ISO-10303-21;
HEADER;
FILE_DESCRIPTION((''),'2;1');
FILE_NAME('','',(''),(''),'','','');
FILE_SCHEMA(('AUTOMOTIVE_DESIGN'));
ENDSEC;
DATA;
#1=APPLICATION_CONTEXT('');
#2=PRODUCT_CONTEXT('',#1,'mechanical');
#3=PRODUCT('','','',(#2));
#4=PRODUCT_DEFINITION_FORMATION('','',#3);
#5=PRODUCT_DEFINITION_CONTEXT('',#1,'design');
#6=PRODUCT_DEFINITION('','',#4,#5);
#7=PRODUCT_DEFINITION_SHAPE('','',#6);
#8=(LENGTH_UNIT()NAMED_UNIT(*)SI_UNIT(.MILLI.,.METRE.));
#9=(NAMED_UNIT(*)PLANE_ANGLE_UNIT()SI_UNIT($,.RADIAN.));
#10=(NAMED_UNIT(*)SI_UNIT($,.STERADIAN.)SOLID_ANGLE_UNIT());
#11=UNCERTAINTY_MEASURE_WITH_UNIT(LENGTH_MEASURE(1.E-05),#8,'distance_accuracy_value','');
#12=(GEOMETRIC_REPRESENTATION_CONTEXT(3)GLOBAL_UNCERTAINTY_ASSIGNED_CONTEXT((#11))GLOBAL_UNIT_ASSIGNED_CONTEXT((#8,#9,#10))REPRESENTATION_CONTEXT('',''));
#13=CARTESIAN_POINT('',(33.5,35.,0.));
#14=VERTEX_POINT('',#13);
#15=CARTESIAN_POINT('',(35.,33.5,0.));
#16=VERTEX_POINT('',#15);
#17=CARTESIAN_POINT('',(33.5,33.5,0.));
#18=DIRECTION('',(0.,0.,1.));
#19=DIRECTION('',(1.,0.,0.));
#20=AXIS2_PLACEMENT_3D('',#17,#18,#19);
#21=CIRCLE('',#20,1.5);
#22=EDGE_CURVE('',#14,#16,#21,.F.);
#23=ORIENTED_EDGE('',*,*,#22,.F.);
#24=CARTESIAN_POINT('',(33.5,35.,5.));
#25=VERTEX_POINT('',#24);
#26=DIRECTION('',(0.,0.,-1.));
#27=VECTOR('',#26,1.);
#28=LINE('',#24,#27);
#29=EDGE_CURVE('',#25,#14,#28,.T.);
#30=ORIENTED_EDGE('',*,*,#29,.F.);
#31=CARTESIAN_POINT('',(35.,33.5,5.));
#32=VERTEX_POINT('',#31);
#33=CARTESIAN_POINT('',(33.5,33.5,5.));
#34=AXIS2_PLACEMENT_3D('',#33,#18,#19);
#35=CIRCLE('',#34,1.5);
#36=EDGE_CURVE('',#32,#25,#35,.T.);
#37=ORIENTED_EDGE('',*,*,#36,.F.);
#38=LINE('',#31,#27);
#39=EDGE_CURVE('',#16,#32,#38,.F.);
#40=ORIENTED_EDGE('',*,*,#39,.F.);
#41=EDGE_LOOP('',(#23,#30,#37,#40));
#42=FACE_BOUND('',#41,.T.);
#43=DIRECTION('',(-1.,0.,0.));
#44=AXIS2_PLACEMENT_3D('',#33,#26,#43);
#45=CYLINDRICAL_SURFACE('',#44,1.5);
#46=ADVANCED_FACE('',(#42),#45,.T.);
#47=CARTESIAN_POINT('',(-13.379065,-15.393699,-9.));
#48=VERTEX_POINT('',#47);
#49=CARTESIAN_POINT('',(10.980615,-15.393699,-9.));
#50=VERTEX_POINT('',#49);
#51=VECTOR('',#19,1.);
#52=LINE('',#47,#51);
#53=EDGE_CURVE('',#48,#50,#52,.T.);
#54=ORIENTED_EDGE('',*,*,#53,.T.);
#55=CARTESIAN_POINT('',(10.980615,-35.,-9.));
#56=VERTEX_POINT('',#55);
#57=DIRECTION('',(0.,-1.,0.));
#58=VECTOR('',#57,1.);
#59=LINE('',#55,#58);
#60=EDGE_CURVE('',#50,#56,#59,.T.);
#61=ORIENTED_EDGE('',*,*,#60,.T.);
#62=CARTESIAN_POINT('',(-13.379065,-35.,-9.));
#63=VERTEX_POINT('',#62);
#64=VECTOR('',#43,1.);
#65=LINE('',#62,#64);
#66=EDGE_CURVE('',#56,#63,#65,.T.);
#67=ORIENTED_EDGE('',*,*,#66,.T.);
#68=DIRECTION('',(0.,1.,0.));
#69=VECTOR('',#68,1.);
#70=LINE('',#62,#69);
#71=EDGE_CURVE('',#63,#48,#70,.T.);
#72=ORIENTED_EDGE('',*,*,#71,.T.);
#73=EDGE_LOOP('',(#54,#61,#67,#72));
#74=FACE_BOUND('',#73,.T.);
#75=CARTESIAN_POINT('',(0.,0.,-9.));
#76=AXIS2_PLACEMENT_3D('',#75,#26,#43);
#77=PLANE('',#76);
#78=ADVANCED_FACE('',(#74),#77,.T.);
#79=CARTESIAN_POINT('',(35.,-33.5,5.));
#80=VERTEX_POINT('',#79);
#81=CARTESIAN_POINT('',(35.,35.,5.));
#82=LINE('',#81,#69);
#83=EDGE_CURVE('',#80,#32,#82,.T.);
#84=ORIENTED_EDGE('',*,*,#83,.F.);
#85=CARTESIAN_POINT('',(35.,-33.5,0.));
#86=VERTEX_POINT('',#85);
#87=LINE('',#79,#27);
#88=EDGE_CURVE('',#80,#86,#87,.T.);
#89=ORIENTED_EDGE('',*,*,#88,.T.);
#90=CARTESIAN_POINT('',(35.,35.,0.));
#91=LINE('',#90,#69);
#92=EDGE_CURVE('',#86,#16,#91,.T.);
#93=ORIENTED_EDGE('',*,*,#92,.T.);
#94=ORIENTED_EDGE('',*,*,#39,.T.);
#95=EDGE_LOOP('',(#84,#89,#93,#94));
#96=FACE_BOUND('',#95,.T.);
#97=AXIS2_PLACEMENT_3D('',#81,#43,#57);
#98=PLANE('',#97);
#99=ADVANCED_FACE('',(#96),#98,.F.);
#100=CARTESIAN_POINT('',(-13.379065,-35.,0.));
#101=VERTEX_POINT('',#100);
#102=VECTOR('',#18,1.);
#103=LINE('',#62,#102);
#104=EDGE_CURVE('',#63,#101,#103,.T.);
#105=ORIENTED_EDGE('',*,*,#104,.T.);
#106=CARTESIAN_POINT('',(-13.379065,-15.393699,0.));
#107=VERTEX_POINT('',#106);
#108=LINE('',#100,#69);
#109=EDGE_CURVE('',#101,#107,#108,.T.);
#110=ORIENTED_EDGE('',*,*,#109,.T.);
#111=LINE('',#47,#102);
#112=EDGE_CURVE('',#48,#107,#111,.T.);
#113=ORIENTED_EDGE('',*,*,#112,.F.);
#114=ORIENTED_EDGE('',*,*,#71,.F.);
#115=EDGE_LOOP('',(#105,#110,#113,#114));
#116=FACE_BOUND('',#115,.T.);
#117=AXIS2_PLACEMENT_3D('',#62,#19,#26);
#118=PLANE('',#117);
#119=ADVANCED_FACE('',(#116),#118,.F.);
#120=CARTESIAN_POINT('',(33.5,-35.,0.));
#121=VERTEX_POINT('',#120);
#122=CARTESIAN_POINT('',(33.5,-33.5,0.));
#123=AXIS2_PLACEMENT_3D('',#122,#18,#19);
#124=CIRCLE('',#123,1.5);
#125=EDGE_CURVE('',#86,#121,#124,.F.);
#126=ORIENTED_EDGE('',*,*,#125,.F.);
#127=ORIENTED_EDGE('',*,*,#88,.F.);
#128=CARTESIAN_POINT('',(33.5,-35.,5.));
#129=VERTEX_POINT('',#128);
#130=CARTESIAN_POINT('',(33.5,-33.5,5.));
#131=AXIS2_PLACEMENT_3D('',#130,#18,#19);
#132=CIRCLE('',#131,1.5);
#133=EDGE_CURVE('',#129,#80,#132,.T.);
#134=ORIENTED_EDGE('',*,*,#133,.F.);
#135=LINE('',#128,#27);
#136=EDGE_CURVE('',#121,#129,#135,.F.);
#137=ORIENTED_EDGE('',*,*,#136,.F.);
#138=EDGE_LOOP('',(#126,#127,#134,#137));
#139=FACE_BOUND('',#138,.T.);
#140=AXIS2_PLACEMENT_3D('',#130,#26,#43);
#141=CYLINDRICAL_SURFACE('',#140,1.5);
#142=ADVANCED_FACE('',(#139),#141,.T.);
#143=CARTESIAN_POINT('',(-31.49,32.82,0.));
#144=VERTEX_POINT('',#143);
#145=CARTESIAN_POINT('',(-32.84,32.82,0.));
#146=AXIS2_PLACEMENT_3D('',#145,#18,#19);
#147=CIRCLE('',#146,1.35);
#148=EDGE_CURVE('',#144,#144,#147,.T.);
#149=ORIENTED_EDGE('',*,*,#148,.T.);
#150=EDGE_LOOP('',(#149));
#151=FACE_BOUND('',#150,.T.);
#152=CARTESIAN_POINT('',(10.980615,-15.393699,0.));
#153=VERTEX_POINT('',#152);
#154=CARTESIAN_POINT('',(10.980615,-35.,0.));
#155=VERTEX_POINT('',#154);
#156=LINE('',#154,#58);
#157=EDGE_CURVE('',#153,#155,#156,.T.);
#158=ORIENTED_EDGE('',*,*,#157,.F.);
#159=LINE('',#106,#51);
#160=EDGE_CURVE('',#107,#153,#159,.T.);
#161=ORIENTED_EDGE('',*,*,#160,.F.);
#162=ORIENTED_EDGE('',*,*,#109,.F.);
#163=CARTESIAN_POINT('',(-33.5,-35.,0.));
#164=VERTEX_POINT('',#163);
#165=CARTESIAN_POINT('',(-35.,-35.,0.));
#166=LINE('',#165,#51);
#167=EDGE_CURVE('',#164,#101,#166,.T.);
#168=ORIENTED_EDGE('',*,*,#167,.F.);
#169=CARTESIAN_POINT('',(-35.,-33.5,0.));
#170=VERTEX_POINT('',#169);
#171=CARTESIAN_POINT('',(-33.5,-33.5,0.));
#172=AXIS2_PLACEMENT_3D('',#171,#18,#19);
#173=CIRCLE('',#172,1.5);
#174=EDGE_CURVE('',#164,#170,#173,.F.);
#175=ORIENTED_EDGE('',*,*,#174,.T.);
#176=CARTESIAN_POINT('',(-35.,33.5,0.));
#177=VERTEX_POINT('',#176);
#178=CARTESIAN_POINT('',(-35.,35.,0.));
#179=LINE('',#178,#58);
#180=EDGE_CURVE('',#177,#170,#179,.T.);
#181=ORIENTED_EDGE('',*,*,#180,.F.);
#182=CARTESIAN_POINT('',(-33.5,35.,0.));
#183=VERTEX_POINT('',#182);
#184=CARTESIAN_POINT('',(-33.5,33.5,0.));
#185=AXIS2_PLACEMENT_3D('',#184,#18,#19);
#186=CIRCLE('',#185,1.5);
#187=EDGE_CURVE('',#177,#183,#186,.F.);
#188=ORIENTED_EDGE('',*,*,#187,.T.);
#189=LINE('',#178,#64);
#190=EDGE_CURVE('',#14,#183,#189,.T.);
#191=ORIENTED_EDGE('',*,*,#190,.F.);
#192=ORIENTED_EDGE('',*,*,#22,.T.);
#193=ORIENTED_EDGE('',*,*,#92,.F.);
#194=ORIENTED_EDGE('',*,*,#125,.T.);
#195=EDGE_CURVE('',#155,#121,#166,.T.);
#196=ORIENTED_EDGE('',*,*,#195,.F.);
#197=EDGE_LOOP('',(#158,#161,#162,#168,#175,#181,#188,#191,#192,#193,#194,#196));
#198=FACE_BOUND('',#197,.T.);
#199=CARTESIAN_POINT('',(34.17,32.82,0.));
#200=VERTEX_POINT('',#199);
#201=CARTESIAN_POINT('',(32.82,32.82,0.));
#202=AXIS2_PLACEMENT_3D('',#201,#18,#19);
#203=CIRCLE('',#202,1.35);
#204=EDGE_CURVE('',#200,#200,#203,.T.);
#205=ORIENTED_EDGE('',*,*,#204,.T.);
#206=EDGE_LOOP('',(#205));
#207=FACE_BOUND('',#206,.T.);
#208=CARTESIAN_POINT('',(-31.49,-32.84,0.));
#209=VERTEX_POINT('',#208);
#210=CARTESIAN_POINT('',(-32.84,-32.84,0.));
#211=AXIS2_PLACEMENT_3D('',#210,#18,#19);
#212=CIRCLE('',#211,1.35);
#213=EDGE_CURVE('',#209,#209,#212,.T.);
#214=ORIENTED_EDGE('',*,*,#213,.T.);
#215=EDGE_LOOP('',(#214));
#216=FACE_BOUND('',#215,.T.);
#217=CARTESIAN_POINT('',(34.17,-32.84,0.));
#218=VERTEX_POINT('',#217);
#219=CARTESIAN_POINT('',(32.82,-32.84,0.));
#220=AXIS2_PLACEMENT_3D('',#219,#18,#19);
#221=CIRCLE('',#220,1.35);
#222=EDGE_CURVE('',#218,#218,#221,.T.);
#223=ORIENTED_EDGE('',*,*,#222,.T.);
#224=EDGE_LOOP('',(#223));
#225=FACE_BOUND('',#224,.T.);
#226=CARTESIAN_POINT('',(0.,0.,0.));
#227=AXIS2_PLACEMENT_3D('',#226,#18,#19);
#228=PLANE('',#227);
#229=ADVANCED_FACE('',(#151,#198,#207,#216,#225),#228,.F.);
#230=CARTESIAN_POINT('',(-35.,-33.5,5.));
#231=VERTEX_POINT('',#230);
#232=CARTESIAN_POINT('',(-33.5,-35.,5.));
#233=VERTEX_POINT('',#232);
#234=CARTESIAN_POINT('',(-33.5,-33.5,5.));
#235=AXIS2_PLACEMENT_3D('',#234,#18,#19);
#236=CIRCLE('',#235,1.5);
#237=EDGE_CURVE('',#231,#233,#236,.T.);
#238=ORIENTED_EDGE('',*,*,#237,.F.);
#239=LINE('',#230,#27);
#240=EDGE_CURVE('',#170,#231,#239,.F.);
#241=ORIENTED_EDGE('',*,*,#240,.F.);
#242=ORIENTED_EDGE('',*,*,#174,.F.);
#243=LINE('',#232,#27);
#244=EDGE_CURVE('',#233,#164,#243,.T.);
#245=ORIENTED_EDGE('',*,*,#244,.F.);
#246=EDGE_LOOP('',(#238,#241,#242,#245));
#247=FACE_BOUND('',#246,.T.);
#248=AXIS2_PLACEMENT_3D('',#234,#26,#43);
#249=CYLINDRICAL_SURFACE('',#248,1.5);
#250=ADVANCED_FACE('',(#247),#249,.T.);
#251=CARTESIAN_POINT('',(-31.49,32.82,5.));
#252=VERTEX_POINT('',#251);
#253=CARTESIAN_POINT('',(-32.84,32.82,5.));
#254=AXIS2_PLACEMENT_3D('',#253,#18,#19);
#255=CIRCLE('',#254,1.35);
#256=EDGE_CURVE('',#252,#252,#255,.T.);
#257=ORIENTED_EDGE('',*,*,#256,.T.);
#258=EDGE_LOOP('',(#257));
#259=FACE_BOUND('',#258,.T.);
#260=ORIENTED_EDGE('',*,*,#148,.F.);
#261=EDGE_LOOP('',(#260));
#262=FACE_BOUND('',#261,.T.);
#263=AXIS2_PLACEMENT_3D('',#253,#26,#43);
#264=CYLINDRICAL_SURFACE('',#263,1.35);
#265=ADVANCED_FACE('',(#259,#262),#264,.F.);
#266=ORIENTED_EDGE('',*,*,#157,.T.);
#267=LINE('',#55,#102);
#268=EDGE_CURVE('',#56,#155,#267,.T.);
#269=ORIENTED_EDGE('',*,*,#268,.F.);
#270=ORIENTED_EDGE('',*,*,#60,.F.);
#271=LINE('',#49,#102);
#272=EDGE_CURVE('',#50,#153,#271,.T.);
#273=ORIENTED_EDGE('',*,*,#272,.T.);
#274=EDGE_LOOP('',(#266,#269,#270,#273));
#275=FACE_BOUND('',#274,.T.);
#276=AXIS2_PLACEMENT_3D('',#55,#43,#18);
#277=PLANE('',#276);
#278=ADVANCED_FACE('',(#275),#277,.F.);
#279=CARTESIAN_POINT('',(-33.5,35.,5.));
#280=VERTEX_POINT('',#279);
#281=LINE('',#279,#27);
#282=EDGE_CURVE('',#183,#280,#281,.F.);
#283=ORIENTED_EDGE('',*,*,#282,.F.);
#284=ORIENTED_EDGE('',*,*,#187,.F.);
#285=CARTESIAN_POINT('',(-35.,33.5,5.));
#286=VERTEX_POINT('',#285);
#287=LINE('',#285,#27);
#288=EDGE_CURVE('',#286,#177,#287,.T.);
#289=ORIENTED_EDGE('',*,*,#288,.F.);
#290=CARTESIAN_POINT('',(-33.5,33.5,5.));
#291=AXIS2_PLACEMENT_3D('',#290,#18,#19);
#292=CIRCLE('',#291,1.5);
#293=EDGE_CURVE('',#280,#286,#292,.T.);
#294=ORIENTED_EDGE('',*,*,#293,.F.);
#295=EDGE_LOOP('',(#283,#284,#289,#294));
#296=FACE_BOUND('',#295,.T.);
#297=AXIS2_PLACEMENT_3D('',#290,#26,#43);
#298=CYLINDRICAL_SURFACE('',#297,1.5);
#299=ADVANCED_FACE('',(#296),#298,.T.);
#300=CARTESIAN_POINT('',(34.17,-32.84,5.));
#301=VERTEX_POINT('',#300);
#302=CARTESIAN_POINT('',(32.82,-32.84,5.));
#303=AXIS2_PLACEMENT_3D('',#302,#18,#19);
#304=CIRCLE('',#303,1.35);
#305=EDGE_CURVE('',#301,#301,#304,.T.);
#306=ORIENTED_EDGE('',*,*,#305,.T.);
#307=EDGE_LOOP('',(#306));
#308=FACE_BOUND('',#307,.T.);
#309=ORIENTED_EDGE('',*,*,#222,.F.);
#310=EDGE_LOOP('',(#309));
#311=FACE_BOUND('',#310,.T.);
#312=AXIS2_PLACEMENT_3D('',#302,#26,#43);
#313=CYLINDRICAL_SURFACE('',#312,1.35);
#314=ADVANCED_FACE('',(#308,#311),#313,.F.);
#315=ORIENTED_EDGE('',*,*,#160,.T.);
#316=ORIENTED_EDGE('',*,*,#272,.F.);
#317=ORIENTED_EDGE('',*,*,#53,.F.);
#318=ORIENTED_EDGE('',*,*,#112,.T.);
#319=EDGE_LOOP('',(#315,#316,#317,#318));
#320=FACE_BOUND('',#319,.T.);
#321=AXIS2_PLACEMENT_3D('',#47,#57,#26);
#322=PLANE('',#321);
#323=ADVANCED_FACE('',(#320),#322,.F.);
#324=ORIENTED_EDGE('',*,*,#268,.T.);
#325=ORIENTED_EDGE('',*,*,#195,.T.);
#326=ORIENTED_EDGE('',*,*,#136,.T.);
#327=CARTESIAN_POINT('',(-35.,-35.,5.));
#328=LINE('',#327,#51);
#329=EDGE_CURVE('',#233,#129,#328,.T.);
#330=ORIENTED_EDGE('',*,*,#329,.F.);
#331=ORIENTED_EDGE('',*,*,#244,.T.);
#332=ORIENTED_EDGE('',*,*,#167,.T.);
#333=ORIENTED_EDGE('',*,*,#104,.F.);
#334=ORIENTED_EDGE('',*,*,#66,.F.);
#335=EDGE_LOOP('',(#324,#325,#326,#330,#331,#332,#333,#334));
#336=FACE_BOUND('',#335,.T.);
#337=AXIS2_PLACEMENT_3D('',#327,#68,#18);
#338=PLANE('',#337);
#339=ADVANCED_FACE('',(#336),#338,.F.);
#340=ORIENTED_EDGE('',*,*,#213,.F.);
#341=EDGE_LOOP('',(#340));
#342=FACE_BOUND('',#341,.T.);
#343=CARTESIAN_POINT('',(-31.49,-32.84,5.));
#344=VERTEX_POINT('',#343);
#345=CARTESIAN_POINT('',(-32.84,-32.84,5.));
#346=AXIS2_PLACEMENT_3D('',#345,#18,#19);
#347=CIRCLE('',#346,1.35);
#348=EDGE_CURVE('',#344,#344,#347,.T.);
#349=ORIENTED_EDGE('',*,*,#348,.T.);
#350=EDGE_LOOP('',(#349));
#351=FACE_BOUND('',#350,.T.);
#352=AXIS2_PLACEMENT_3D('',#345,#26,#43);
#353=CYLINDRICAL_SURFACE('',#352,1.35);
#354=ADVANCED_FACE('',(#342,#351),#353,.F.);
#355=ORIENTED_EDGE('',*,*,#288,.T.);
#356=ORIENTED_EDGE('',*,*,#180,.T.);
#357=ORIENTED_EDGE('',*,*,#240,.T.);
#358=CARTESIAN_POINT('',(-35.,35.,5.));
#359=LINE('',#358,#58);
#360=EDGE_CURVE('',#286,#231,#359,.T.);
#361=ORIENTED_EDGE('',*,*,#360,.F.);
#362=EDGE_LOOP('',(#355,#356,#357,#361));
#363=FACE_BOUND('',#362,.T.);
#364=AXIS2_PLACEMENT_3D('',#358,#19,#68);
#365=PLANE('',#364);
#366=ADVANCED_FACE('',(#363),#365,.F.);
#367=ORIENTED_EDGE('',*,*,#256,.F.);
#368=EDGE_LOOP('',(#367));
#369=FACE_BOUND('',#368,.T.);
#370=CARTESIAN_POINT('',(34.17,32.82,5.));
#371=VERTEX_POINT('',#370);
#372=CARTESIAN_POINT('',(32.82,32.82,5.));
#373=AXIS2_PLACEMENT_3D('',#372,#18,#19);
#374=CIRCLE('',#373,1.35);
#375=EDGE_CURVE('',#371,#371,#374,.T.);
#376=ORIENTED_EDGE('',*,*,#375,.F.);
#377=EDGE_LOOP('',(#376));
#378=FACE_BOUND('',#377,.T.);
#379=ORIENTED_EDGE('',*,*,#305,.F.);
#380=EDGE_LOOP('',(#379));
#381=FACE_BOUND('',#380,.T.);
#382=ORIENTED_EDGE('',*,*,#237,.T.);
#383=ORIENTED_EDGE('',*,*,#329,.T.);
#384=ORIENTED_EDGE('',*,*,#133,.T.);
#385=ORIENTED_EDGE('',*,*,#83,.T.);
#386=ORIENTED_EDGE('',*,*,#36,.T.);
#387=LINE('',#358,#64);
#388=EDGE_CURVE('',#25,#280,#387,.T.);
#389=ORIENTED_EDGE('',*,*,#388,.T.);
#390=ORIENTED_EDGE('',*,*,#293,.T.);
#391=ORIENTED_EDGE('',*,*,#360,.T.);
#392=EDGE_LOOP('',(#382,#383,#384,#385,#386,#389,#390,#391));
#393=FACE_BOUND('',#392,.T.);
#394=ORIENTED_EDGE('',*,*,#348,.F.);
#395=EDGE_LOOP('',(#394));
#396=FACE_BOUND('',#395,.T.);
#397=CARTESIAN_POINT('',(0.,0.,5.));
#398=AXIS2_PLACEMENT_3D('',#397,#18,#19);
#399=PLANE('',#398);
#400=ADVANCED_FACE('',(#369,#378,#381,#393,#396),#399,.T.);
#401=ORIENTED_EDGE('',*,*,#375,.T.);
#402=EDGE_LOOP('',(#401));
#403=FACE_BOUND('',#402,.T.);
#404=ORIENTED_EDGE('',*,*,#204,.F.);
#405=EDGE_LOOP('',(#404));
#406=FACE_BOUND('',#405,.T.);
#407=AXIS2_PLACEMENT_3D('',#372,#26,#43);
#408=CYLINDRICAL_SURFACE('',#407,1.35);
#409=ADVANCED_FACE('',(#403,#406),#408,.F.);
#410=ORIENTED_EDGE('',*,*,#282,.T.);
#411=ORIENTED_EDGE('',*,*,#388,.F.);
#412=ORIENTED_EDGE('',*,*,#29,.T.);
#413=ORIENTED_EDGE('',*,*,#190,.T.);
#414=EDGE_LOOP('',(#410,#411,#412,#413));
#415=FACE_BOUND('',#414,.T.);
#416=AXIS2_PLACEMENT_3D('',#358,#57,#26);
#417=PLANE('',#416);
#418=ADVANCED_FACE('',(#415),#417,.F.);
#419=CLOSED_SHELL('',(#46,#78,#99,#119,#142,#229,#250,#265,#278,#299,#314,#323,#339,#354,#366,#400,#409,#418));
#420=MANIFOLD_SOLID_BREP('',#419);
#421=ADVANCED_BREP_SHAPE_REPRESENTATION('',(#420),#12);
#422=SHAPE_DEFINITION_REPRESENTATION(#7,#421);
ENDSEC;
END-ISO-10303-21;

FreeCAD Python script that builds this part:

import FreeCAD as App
import Part
import Sketcher
Q = App.Units.Quantity


def edges_at(feature, points):
    """Names of the edges that pass closest to the given points."""
    edges = feature.Shape.Edges
    near = lambda p: min(range(len(edges)), key=lambda i: edges[i].distToShape(Part.Vertex(*p))[0])
    return sorted({f"Edge{near(p) + 1}" for p in points})

doc = App.newDocument("Part")
params = doc.addObject("Spreadsheet::Sheet", "Params")
for row, (alias, value) in enumerate([
    ("sketch1_diameter", "2.7 mm"),
    ("sketch1_width", "70 mm"),
    ("pad1_length", "5 mm"),
    ("fillet_radius", "1.5 mm"),
    ("pad2_length", "9 mm"),
], start=1):
    params.set(f"A{row}", alias)
    params.set(f"B{row}", "=" + value)
    params.setAlias(f"B{row}", alias)

body = doc.addObject("PartDesign::Body", "Body")

sketch1 = body.newObject("Sketcher::SketchObject", "Sketch")
sketch1.AttachmentSupport = (doc.getObject("XY_Plane"), [""])
sketch1.MapMode = "FlatFace"
sketch1.addGeometry(Part.LineSegment(App.Vector(-35, 35, 0), App.Vector(-35, -35, 0)), False)
sketch1.addGeometry(Part.LineSegment(App.Vector(-35, -35, 0), App.Vector(35, -35, 0)), False)
sketch1.addGeometry(Part.LineSegment(App.Vector(35, -35, 0), App.Vector(35, 35, 0)), False)
sketch1.addGeometry(Part.LineSegment(App.Vector(35, 35, 0), App.Vector(-35, 35, 0)), False)
sketch1.addGeometry(Part.Circle(App.Vector(-32.84, -32.84, 0), App.Vector(0, 0, 1), 1.35), False)
sketch1.addGeometry(Part.Circle(App.Vector(32.82, -32.84, 0), App.Vector(0, 0, 1), 1.35), False)
sketch1.addGeometry(Part.Circle(App.Vector(-32.84, 32.82, 0), App.Vector(0, 0, 1), 1.35), False)
sketch1.addGeometry(Part.Circle(App.Vector(32.82, 32.82, 0), App.Vector(0, 0, 1), 1.35), False)
sketch1.addConstraint(Sketcher.Constraint("Coincident", 0, 2, 1, 1))
sketch1.addConstraint(Sketcher.Constraint("Coincident", 1, 2, 2, 1))
sketch1.addConstraint(Sketcher.Constraint("Coincident", 2, 2, 3, 1))
sketch1.addConstraint(Sketcher.Constraint("Coincident", 3, 2, 0, 1))
sketch1.addConstraint(Sketcher.Constraint("Vertical", 0))
sketch1.addConstraint(Sketcher.Constraint("Horizontal", 1))
sketch1.addConstraint(Sketcher.Constraint("Vertical", 2))
sketch1.addConstraint(Sketcher.Constraint("Horizontal", 3))
sketch1.addConstraint(Sketcher.Constraint("Equal", 4, 5))
sketch1.addConstraint(Sketcher.Constraint("Equal", 5, 6))
sketch1.addConstraint(Sketcher.Constraint("Equal", 6, 7))
sketch1.addConstraint(Sketcher.Constraint("Symmetric", 0, 2, 2, 2, -1, 1))
sketch1.addConstraint(Sketcher.Constraint("Horizontal", 4, 3, 5, 3))
sketch1.addConstraint(Sketcher.Constraint("Horizontal", 6, 3, 7, 3))
sketch1.addConstraint(Sketcher.Constraint("Vertical", 4, 3, 6, 3))
sketch1.addConstraint(Sketcher.Constraint("Vertical", 5, 3, 7, 3))
sketch1.addConstraint(Sketcher.Constraint("Equal", 3, 0))
sketch1.addConstraint(Sketcher.Constraint("Diameter", 4, Q("2.7 mm")))
sketch1.addConstraint(Sketcher.Constraint("DistanceX", 1, 1, 1, 2, Q("70 mm")))
sketch1.addConstraint(Sketcher.Constraint("DistanceX", 4, 3, -1, 1, Q("32.84 mm")))
sketch1.addConstraint(Sketcher.Constraint("DistanceY", 4, 3, -1, 1, Q("32.84 mm")))
sketch1.addConstraint(Sketcher.Constraint("DistanceX", -1, 1, 5, 3, Q("32.82 mm")))
sketch1.addConstraint(Sketcher.Constraint("DistanceY", -1, 1, 6, 3, Q("32.82 mm")))
sketch1.setExpression("Constraints[17]", "Params.sketch1_diameter")
sketch1.setExpression("Constraints[18]", "Params.sketch1_width")
pad1 = body.newObject("PartDesign::Pad", "Pad")
pad1.Profile = sketch1
pad1.setExpression("Length", "Params.pad1_length")
doc.recompute()

fillet = body.newObject("PartDesign::Fillet", "Fillet")
fillet.Base = (pad1, edges_at(pad1, [
    (35, -35, 2.5),
    (-35, -35, 2.5),
    (-35, 35, 2.5),
    (35, 35, 2.5),
]))
fillet.setExpression("Radius", "Params.fillet_radius")

sketch2 = body.newObject("Sketcher::SketchObject", "Sketch001")
sketch2.AttachmentSupport = (doc.getObject("XY_Plane"), [""])
sketch2.MapMode = "FlatFace"
sketch2.addGeometry(Part.LineSegment(App.Vector(10.980615, -15.393699, 0), App.Vector(10.980615, -35, 0)), False)
sketch2.addGeometry(Part.LineSegment(App.Vector(10.980615, -35, 0), App.Vector(-13.379065, -35, 0)), False)
sketch2.addGeometry(Part.LineSegment(App.Vector(-13.379065, -35, 0), App.Vector(-13.379065, -15.393699, 0)), False)
sketch2.addGeometry(Part.LineSegment(App.Vector(-13.379065, -15.393699, 0), App.Vector(10.980615, -15.393699, 0)), False)
sketch2.addConstraint(Sketcher.Constraint("Coincident", 0, 2, 1, 1))
sketch2.addConstraint(Sketcher.Constraint("Coincident", 1, 2, 2, 1))
sketch2.addConstraint(Sketcher.Constraint("Coincident", 2, 2, 3, 1))
sketch2.addConstraint(Sketcher.Constraint("Coincident", 3, 2, 0, 1))
sketch2.addConstraint(Sketcher.Constraint("Vertical", 0))
sketch2.addConstraint(Sketcher.Constraint("Horizontal", 1))
sketch2.addConstraint(Sketcher.Constraint("Vertical", 2))
sketch2.addConstraint(Sketcher.Constraint("Horizontal", 3))
sketch2.addConstraint(Sketcher.Constraint("DistanceY", 0, 2, -1, 1, Q("35 mm")))
sketch2.addConstraint(Sketcher.Constraint("DistanceY", 0, 2, 0, 1, Q("19.606301 mm")))
sketch2.addConstraint(Sketcher.Constraint("DistanceX", 1, 2, 1, 1, Q("24.35968 mm")))
sketch2.addConstraint(Sketcher.Constraint("DistanceX", -1, 1, 0, 2, Q("10.980615 mm")))
pad2 = body.newObject("PartDesign::Pad", "Pad001")
pad2.Profile = sketch2
pad2.setExpression("Length", "Params.pad2_length")
pad2.Reversed = True

doc.recompute()
